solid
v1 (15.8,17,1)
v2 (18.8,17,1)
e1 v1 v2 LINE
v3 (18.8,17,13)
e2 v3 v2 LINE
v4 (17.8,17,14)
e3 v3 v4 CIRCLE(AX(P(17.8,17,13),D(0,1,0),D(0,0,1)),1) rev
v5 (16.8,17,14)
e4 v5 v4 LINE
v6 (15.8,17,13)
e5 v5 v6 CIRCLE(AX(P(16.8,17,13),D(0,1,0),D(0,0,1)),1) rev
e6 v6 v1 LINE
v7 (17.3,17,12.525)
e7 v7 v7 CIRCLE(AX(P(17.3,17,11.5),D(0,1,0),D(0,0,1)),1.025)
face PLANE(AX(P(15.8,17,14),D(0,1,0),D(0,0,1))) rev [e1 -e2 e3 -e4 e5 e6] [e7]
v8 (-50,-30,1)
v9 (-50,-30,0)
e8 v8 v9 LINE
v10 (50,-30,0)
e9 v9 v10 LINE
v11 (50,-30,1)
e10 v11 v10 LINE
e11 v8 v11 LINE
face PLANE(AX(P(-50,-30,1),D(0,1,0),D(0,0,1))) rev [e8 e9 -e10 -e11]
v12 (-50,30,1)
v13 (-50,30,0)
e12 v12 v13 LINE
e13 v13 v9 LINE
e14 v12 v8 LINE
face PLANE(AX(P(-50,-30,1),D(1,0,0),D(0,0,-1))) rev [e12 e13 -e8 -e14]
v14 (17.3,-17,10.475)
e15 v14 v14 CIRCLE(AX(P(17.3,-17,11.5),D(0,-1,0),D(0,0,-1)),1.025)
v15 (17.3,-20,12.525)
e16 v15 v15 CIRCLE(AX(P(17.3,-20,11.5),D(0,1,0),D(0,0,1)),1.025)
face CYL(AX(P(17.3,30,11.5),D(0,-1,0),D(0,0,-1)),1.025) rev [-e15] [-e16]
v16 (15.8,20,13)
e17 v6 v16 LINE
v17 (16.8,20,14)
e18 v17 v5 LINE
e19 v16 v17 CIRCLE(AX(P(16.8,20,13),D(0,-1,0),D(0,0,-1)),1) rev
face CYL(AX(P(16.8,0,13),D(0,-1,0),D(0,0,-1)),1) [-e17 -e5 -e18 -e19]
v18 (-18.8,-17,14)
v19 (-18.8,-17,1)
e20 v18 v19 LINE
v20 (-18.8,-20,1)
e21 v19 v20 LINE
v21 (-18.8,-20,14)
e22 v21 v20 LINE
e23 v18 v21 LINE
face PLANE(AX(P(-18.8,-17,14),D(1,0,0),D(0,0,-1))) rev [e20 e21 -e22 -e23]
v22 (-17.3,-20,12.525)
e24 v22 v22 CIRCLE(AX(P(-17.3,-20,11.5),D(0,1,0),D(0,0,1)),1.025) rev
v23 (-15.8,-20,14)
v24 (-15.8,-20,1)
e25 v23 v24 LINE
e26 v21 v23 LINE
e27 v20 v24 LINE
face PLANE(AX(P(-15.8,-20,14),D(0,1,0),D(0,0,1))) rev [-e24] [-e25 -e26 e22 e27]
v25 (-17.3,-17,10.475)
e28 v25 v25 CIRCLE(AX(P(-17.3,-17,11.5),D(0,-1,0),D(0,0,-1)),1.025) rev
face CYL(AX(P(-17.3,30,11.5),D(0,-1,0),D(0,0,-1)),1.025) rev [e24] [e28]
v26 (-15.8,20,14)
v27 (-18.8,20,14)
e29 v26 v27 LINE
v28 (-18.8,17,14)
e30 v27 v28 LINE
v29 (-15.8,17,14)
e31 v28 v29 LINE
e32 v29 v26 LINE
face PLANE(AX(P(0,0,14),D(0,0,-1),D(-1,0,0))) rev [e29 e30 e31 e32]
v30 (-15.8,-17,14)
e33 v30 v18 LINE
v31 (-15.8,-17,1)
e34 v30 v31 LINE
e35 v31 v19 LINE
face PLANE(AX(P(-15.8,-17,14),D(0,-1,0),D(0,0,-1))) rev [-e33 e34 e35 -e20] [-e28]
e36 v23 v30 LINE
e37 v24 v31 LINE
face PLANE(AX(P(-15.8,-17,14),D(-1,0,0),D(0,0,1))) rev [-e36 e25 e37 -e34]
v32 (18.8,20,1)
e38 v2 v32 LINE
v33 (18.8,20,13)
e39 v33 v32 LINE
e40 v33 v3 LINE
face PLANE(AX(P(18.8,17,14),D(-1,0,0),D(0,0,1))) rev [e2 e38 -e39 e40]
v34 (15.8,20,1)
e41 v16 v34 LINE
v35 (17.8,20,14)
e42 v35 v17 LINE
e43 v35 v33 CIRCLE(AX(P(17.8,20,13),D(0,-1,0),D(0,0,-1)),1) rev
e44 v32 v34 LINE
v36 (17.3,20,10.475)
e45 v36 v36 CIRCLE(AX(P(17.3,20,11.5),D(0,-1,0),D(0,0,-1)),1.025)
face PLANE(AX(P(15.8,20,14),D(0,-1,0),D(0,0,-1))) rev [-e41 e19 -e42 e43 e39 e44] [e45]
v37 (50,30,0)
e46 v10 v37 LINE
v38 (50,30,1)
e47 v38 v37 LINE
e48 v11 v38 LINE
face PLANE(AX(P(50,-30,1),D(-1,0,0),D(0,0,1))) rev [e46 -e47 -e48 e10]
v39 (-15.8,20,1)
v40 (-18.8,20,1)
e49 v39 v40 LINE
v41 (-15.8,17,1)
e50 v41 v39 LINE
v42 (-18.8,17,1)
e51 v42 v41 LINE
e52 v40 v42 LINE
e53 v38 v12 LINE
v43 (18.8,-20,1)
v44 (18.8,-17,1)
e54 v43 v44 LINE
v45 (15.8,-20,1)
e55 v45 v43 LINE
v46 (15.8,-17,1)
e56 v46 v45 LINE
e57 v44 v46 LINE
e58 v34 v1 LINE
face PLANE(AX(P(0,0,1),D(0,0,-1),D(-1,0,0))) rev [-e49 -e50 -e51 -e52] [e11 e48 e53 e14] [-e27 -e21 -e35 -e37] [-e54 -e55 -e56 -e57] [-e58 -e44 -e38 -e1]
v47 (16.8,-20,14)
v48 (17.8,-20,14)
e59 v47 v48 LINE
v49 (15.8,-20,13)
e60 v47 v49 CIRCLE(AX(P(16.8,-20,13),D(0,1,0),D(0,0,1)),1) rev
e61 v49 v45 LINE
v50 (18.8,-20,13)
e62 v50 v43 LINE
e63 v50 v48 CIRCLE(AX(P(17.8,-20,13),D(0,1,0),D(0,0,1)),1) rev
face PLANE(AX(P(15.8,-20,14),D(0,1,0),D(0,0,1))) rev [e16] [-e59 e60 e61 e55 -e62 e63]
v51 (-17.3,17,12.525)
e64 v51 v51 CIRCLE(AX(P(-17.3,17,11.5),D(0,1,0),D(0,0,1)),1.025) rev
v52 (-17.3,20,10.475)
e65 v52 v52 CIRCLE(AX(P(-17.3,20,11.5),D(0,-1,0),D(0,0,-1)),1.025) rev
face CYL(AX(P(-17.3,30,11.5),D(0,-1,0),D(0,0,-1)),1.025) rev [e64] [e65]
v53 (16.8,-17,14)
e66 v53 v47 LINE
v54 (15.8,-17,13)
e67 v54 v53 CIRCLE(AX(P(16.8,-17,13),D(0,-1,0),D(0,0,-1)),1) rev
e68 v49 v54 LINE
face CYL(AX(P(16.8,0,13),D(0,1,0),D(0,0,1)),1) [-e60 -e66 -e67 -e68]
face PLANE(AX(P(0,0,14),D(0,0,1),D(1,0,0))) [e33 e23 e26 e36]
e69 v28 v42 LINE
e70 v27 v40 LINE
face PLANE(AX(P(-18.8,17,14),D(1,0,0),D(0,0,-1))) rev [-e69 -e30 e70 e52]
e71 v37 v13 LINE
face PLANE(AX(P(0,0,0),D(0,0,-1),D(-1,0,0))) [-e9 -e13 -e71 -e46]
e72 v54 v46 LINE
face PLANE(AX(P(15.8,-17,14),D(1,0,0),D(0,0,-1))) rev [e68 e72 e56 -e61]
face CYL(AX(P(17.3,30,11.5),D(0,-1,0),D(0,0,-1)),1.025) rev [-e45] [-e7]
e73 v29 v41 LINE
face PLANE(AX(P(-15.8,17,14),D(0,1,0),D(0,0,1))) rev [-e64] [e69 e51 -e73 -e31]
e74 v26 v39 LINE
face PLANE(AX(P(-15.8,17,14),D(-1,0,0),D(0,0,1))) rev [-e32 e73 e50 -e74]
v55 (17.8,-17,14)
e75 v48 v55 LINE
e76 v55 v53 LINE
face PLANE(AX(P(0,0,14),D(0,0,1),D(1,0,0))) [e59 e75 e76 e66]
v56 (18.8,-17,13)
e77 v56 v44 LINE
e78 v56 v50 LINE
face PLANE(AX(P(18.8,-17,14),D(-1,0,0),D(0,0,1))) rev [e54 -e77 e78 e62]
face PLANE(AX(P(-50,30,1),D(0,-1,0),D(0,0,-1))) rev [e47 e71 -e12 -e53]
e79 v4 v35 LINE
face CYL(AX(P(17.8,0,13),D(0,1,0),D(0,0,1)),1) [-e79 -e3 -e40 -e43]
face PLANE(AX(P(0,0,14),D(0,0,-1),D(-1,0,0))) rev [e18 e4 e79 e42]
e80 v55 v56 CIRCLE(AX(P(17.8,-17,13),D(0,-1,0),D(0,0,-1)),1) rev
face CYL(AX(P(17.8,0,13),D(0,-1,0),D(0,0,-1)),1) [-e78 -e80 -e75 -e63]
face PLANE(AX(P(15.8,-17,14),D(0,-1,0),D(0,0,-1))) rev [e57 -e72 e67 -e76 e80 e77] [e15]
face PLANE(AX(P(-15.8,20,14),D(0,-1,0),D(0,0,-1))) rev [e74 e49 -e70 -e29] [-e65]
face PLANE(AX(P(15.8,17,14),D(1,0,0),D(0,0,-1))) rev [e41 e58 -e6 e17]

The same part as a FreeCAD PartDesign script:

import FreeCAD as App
import Part
import Sketcher
from FreeCAD import Vector


def edges_at(feature, points):
    """Names of the edges that pass closest to the given points."""
    edges = feature.Shape.Edges
    near = lambda p: min(range(len(edges)), key=lambda i: edges[i].distToShape(Part.Vertex(*p))[0])
    return sorted({f"Edge{near(p) + 1}" for p in points})

doc = App.newDocument("Part")
body = doc.addObject("PartDesign::Body", "Body")

sketch1 = body.newObject("Sketcher::SketchObject", "Sketch")
sketch1.AttachmentSupport = (doc.getObject("XY_Plane"), [""])
sketch1.MapMode = "FlatFace"
sketch1.addGeometry(Part.LineSegment(Vector(-50, 30, 0), Vector(-50, -30, 0)), False)
sketch1.addGeometry(Part.LineSegment(Vector(-50, -30, 0), Vector(50, -30, 0)), False)
sketch1.addGeometry(Part.LineSegment(Vector(50, -30, 0), Vector(50, 30, 0)), False)
sketch1.addGeometry(Part.LineSegment(Vector(50, 30, 0), Vector(-50, 30, 0)), False)
sketch1.addConstraint(Sketcher.Constraint("Coincident", 0, 2, 1, 1))
sketch1.addConstraint(Sketcher.Constraint("Coincident", 1, 2, 2, 1))
sketch1.addConstraint(Sketcher.Constraint("Coincident", 2, 2, 3, 1))
sketch1.addConstraint(Sketcher.Constraint("Coincident", 3, 2, 0, 1))
sketch1.addConstraint(Sketcher.Constraint("Vertical", 0))
sketch1.addConstraint(Sketcher.Constraint("Horizontal", 1))
sketch1.addConstraint(Sketcher.Constraint("Vertical", 2))
sketch1.addConstraint(Sketcher.Constraint("Horizontal", 3))
sketch1.addConstraint(Sketcher.Constraint("Symmetric", 0, 2, 2, 2, -1, 1))
sketch1.addConstraint(Sketcher.Constraint("DistanceX", 1, 1, 1, 2, 100.0))
sketch1.addConstraint(Sketcher.Constraint("DistanceY", 0, 2, 0, 1, 60.0))
pad1 = body.newObject("PartDesign::Pad", "Pad")
pad1.Profile = sketch1
pad1.Length = 1

sketch2 = body.newObject("Sketcher::SketchObject", "Sketch001")
sketch2.AttachmentSupport = (doc.getObject("XY_Plane"), [""])
sketch2.MapMode = "FlatFace"
sketch2.addGeometry(Part.LineSegment(Vector(15.8, 20, 0), Vector(15.8, 17, 0)), False)
sketch2.addGeometry(Part.LineSegment(Vector(15.8, 17, 0), Vector(18.8, 17, 0)), False)
sketch2.addGeometry(Part.LineSegment(Vector(18.8, 17, 0), Vector(18.8, 20, 0)), False)
sketch2.addGeometry(Part.LineSegment(Vector(18.8, 20, 0), Vector(15.8, 20, 0)), False)
sketch2.addGeometry(Part.LineSegment(Vector(15.8, -17, 0), Vector(15.8, -20, 0)), False)
sketch2.addGeometry(Part.LineSegment(Vector(15.8, -20, 0), Vector(18.8, -20, 0)), False)
sketch2.addGeometry(Part.LineSegment(Vector(18.8, -20, 0), Vector(18.8, -17, 0)), False)
sketch2.addGeometry(Part.LineSegment(Vector(18.8, -17, 0), Vector(15.8, -17, 0)), False)
sketch2.addGeometry(Part.LineSegment(Vector(-18.8, -17, 0), Vector(-18.8, -20, 0)), False)
sketch2.addGeometry(Part.LineSegment(Vector(-18.8, -20, 0), Vector(-15.8, -20, 0)), False)
sketch2.addGeometry(Part.LineSegment(Vector(-15.8, -20, 0), Vector(-15.8, -17, 0)), False)
sketch2.addGeometry(Part.LineSegment(Vector(-15.8, -17, 0), Vector(-18.8, -17, 0)), False)
sketch2.addGeometry(Part.LineSegment(Vector(-18.8, 20, 0), Vector(-18.8, 17, 0)), False)
sketch2.addGeometry(Part.LineSegment(Vector(-18.8, 17, 0), Vector(-15.8, 17, 0)), False)
sketch2.addGeometry(Part.LineSegment(Vector(-15.8, 17, 0), Vector(-15.8, 20, 0)), False)
sketch2.addGeometry(Part.LineSegment(Vector(-15.8, 20, 0), Vector(-18.8, 20, 0)), False)
sketch2.addConstraint(Sketcher.Constraint("Coincident", 0, 2, 1, 1))
sketch2.addConstraint(Sketcher.Constraint("Coincident", 1, 2, 2, 1))
sketch2.addConstraint(Sketcher.Constraint("Coincident", 2, 2, 3, 1))
sketch2.addConstraint(Sketcher.Constraint("Coincident", 3, 2, 0, 1))
sketch2.addConstraint(Sketcher.Constraint("Coincident", 4, 2, 5, 1))
sketch2.addConstraint(Sketcher.Constraint("Coincident", 5, 2, 6, 1))
sketch2.addConstraint(Sketcher.Constraint("Coincident", 6, 2, 7, 1))
sketch2.addConstraint(Sketcher.Constraint("Coincident", 7, 2, 4, 1))
sketch2.addConstraint(Sketcher.Constraint("Coincident", 8, 2, 9, 1))
sketch2.addConstraint(Sketcher.Constraint("Coincident", 9, 2, 10, 1))
sketch2.addConstraint(Sketcher.Constraint("Coincident", 10, 2, 11, 1))
sketch2.addConstraint(Sketcher.Constraint("Coincident", 11, 2, 8, 1))
sketch2.addConstraint(Sketcher.Constraint("Coincident", 12, 2, 13, 1))
sketch2.addConstraint(Sketcher.Constraint("Coincident", 13, 2, 14, 1))
sketch2.addConstraint(Sketcher.Constraint("Coincident", 14, 2, 15, 1))
sketch2.addConstraint(Sketcher.Constraint("Coincident", 15, 2, 12, 1))
sketch2.addConstraint(Sketcher.Constraint("Vertical", 0))
sketch2.addConstraint(Sketcher.Constraint("Horizontal", 1))
sketch2.addConstraint(Sketcher.Constraint("Vertical", 2))
sketch2.addConstraint(Sketcher.Constraint("Horizontal", 3))
sketch2.addConstraint(Sketcher.Constraint("Vertical", 4))
sketch2.addConstraint(Sketcher.Constraint("Horizontal", 5))
sketch2.addConstraint(Sketcher.Constraint("Vertical", 6))
sketch2.addConstraint(Sketcher.Constraint("Horizontal", 7))
sketch2.addConstraint(Sketcher.Constraint("Vertical", 8))
sketch2.addConstraint(Sketcher.Constraint("Horizontal", 9))
sketch2.addConstraint(Sketcher.Constraint("Vertical", 10))
sketch2.addConstraint(Sketcher.Constraint("Horizontal", 11))
sketch2.addConstraint(Sketcher.Constraint("Vertical", 12))
sketch2.addConstraint(Sketcher.Constraint("Horizontal", 13))
sketch2.addConstraint(Sketcher.Constraint("Vertical", 14))
sketch2.addConstraint(Sketcher.Constraint("Horizontal", 15))
sketch2.addConstraint(Sketcher.Constraint("Symmetric", 2, 2, 8, 2, -1, 1))
sketch2.addConstraint(Sketcher.Constraint("Symmetric", 0, 2, 10, 2, -1, 1))
sketch2.addConstraint(Sketcher.Constraint("Symmetric", 6, 2, 12, 2, -1, 1))
sketch2.addConstraint(Sketcher.Constraint("Symmetric", 4, 2, 14, 2, -1, 1))
sketch2.addConstraint(Sketcher.Constraint("Symmetric", 5, 2, 8, 2, -2))
sketch2.addConstraint(Sketcher.Constraint("Symmetric", 7, 2, 10, 2, -2))
sketch2.addConstraint(Sketcher.Constraint("Equal", 15, 0))
sketch2.addConstraint(Sketcher.Constraint("DistanceX", 1, 1, 1, 2, 3.0))
sketch2.addConstraint(Sketcher.Constraint("DistanceY", -1, 1, 0, 2, 17.0))
sketch2.addConstraint(Sketcher.Constraint("DistanceX", -1, 1, 0, 2, 15.8))
pad2 = body.newObject("PartDesign::Pad", "Pad001")
pad2.Profile = sketch2
pad2.Length = 14

sketch3 = body.newObject("Sketcher::SketchObject", "Sketch002")
sketch3.AttachmentSupport = (doc.getObject("XZ_Plane"), [""])
sketch3.MapMode = "FlatFace"
sketch3.AttachmentOffset = App.Placement(Vector(0, 0, 20), App.Rotation())
sketch3.addGeometry(Part.Circle(Vector(17.3, 11.5, 0), Vector(0, 0, 1), 1), False)
sketch3.addGeometry(Part.Circle(Vector(-17.3, 11.5, 0), Vector(0, 0, 1), 1), False)
sketch3.addConstraint(Sketcher.Constraint("Equal", 0, 1))
sketch3.addConstraint(Sketcher.Constraint("Symmetric", 0, 3, 1, 3, -2))
sketch3.addConstraint(Sketcher.Constraint("Diameter", 0, 2.05))
sketch3.addConstraint(Sketcher.Constraint("DistanceX", -1, 1, 0, 3, 17.3))
sketch3.addConstraint(Sketcher.Constraint("DistanceY", -1, 1, 0, 3, 11.5))
pocket1 = body.newObject("PartDesign::Pocket", "Pocket")
pocket1.Profile = sketch3
pocket1.Type = "ThroughAll"
pocket1.Midplane = True
doc.recompute()

fillet = body.newObject("PartDesign::Fillet", "Fillet")
fillet.Base = (pocket1, edges_at(pocket1, [(15.8, -18.5, 14)]))
fillet.Radius = 1
doc.recompute()

fillet2 = body.newObject("PartDesign::Fillet", "Fillet001")
fillet2.Base = (fillet, edges_at(fillet, [(18.8, 18.5, 14), (15.8, 18.5, 14), (18.8, -18.5, 14)]))
fillet2.Radius = 1

doc.recompute()
